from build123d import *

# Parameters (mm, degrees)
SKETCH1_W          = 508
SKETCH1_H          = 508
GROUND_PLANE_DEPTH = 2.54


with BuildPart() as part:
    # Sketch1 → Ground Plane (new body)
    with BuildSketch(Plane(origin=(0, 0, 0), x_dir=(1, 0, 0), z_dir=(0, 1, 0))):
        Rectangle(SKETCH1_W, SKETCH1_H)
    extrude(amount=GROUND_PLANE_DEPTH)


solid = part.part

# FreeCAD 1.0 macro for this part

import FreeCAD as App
import Part
import Sketcher

V = App.Vector
Q = App.Units.Quantity

doc = App.newDocument("Part")
body = doc.addObject("PartDesign::Body", "Body")

# Sketch on XZ plane
sketch1 = body.newObject("Sketcher::SketchObject", "Sketch")
sketch1.AttachmentSupport = (doc.getObject("XZ_Plane"), [""])
sketch1.MapMode = "FlatFace"
sketch1.addGeometry([
    Part.LineSegment(V(-254, -254, 0), V(-254, 254, 0)),
    Part.LineSegment(V(-254, 254, 0), V(254, 254, 0)),
    Part.LineSegment(V(254, 254, 0), V(254, -254, 0)),
    Part.LineSegment(V(254, -254, 0), V(-254, -254, 0)),
], False)
sketch1.addConstraint([
    Sketcher.Constraint("Coincident", 0, 2, 1, 1),
    Sketcher.Constraint("Coincident", 1, 2, 2, 1),
    Sketcher.Constraint("Coincident", 2, 2, 3, 1),
    Sketcher.Constraint("Coincident", 3, 2, 0, 1),
    Sketcher.Constraint("Vertical", 0),
    Sketcher.Constraint("Horizontal", 1),
    Sketcher.Constraint("Vertical", 2),
    Sketcher.Constraint("Horizontal", 3),
    Sketcher.Constraint("Symmetric", 0, 2, 2, 2, -1, 1),
    Sketcher.Constraint("Equal", 3, 0),
    Sketcher.Constraint("DistanceX", 1, 1, 1, 2, Q("20 in")),
])
pad1 = body.newObject("PartDesign::Pad", "Pad")
pad1.Profile = sketch1
pad1.Length = Q("0.1 in")
pad1.Reversed = True

doc.recompute()
